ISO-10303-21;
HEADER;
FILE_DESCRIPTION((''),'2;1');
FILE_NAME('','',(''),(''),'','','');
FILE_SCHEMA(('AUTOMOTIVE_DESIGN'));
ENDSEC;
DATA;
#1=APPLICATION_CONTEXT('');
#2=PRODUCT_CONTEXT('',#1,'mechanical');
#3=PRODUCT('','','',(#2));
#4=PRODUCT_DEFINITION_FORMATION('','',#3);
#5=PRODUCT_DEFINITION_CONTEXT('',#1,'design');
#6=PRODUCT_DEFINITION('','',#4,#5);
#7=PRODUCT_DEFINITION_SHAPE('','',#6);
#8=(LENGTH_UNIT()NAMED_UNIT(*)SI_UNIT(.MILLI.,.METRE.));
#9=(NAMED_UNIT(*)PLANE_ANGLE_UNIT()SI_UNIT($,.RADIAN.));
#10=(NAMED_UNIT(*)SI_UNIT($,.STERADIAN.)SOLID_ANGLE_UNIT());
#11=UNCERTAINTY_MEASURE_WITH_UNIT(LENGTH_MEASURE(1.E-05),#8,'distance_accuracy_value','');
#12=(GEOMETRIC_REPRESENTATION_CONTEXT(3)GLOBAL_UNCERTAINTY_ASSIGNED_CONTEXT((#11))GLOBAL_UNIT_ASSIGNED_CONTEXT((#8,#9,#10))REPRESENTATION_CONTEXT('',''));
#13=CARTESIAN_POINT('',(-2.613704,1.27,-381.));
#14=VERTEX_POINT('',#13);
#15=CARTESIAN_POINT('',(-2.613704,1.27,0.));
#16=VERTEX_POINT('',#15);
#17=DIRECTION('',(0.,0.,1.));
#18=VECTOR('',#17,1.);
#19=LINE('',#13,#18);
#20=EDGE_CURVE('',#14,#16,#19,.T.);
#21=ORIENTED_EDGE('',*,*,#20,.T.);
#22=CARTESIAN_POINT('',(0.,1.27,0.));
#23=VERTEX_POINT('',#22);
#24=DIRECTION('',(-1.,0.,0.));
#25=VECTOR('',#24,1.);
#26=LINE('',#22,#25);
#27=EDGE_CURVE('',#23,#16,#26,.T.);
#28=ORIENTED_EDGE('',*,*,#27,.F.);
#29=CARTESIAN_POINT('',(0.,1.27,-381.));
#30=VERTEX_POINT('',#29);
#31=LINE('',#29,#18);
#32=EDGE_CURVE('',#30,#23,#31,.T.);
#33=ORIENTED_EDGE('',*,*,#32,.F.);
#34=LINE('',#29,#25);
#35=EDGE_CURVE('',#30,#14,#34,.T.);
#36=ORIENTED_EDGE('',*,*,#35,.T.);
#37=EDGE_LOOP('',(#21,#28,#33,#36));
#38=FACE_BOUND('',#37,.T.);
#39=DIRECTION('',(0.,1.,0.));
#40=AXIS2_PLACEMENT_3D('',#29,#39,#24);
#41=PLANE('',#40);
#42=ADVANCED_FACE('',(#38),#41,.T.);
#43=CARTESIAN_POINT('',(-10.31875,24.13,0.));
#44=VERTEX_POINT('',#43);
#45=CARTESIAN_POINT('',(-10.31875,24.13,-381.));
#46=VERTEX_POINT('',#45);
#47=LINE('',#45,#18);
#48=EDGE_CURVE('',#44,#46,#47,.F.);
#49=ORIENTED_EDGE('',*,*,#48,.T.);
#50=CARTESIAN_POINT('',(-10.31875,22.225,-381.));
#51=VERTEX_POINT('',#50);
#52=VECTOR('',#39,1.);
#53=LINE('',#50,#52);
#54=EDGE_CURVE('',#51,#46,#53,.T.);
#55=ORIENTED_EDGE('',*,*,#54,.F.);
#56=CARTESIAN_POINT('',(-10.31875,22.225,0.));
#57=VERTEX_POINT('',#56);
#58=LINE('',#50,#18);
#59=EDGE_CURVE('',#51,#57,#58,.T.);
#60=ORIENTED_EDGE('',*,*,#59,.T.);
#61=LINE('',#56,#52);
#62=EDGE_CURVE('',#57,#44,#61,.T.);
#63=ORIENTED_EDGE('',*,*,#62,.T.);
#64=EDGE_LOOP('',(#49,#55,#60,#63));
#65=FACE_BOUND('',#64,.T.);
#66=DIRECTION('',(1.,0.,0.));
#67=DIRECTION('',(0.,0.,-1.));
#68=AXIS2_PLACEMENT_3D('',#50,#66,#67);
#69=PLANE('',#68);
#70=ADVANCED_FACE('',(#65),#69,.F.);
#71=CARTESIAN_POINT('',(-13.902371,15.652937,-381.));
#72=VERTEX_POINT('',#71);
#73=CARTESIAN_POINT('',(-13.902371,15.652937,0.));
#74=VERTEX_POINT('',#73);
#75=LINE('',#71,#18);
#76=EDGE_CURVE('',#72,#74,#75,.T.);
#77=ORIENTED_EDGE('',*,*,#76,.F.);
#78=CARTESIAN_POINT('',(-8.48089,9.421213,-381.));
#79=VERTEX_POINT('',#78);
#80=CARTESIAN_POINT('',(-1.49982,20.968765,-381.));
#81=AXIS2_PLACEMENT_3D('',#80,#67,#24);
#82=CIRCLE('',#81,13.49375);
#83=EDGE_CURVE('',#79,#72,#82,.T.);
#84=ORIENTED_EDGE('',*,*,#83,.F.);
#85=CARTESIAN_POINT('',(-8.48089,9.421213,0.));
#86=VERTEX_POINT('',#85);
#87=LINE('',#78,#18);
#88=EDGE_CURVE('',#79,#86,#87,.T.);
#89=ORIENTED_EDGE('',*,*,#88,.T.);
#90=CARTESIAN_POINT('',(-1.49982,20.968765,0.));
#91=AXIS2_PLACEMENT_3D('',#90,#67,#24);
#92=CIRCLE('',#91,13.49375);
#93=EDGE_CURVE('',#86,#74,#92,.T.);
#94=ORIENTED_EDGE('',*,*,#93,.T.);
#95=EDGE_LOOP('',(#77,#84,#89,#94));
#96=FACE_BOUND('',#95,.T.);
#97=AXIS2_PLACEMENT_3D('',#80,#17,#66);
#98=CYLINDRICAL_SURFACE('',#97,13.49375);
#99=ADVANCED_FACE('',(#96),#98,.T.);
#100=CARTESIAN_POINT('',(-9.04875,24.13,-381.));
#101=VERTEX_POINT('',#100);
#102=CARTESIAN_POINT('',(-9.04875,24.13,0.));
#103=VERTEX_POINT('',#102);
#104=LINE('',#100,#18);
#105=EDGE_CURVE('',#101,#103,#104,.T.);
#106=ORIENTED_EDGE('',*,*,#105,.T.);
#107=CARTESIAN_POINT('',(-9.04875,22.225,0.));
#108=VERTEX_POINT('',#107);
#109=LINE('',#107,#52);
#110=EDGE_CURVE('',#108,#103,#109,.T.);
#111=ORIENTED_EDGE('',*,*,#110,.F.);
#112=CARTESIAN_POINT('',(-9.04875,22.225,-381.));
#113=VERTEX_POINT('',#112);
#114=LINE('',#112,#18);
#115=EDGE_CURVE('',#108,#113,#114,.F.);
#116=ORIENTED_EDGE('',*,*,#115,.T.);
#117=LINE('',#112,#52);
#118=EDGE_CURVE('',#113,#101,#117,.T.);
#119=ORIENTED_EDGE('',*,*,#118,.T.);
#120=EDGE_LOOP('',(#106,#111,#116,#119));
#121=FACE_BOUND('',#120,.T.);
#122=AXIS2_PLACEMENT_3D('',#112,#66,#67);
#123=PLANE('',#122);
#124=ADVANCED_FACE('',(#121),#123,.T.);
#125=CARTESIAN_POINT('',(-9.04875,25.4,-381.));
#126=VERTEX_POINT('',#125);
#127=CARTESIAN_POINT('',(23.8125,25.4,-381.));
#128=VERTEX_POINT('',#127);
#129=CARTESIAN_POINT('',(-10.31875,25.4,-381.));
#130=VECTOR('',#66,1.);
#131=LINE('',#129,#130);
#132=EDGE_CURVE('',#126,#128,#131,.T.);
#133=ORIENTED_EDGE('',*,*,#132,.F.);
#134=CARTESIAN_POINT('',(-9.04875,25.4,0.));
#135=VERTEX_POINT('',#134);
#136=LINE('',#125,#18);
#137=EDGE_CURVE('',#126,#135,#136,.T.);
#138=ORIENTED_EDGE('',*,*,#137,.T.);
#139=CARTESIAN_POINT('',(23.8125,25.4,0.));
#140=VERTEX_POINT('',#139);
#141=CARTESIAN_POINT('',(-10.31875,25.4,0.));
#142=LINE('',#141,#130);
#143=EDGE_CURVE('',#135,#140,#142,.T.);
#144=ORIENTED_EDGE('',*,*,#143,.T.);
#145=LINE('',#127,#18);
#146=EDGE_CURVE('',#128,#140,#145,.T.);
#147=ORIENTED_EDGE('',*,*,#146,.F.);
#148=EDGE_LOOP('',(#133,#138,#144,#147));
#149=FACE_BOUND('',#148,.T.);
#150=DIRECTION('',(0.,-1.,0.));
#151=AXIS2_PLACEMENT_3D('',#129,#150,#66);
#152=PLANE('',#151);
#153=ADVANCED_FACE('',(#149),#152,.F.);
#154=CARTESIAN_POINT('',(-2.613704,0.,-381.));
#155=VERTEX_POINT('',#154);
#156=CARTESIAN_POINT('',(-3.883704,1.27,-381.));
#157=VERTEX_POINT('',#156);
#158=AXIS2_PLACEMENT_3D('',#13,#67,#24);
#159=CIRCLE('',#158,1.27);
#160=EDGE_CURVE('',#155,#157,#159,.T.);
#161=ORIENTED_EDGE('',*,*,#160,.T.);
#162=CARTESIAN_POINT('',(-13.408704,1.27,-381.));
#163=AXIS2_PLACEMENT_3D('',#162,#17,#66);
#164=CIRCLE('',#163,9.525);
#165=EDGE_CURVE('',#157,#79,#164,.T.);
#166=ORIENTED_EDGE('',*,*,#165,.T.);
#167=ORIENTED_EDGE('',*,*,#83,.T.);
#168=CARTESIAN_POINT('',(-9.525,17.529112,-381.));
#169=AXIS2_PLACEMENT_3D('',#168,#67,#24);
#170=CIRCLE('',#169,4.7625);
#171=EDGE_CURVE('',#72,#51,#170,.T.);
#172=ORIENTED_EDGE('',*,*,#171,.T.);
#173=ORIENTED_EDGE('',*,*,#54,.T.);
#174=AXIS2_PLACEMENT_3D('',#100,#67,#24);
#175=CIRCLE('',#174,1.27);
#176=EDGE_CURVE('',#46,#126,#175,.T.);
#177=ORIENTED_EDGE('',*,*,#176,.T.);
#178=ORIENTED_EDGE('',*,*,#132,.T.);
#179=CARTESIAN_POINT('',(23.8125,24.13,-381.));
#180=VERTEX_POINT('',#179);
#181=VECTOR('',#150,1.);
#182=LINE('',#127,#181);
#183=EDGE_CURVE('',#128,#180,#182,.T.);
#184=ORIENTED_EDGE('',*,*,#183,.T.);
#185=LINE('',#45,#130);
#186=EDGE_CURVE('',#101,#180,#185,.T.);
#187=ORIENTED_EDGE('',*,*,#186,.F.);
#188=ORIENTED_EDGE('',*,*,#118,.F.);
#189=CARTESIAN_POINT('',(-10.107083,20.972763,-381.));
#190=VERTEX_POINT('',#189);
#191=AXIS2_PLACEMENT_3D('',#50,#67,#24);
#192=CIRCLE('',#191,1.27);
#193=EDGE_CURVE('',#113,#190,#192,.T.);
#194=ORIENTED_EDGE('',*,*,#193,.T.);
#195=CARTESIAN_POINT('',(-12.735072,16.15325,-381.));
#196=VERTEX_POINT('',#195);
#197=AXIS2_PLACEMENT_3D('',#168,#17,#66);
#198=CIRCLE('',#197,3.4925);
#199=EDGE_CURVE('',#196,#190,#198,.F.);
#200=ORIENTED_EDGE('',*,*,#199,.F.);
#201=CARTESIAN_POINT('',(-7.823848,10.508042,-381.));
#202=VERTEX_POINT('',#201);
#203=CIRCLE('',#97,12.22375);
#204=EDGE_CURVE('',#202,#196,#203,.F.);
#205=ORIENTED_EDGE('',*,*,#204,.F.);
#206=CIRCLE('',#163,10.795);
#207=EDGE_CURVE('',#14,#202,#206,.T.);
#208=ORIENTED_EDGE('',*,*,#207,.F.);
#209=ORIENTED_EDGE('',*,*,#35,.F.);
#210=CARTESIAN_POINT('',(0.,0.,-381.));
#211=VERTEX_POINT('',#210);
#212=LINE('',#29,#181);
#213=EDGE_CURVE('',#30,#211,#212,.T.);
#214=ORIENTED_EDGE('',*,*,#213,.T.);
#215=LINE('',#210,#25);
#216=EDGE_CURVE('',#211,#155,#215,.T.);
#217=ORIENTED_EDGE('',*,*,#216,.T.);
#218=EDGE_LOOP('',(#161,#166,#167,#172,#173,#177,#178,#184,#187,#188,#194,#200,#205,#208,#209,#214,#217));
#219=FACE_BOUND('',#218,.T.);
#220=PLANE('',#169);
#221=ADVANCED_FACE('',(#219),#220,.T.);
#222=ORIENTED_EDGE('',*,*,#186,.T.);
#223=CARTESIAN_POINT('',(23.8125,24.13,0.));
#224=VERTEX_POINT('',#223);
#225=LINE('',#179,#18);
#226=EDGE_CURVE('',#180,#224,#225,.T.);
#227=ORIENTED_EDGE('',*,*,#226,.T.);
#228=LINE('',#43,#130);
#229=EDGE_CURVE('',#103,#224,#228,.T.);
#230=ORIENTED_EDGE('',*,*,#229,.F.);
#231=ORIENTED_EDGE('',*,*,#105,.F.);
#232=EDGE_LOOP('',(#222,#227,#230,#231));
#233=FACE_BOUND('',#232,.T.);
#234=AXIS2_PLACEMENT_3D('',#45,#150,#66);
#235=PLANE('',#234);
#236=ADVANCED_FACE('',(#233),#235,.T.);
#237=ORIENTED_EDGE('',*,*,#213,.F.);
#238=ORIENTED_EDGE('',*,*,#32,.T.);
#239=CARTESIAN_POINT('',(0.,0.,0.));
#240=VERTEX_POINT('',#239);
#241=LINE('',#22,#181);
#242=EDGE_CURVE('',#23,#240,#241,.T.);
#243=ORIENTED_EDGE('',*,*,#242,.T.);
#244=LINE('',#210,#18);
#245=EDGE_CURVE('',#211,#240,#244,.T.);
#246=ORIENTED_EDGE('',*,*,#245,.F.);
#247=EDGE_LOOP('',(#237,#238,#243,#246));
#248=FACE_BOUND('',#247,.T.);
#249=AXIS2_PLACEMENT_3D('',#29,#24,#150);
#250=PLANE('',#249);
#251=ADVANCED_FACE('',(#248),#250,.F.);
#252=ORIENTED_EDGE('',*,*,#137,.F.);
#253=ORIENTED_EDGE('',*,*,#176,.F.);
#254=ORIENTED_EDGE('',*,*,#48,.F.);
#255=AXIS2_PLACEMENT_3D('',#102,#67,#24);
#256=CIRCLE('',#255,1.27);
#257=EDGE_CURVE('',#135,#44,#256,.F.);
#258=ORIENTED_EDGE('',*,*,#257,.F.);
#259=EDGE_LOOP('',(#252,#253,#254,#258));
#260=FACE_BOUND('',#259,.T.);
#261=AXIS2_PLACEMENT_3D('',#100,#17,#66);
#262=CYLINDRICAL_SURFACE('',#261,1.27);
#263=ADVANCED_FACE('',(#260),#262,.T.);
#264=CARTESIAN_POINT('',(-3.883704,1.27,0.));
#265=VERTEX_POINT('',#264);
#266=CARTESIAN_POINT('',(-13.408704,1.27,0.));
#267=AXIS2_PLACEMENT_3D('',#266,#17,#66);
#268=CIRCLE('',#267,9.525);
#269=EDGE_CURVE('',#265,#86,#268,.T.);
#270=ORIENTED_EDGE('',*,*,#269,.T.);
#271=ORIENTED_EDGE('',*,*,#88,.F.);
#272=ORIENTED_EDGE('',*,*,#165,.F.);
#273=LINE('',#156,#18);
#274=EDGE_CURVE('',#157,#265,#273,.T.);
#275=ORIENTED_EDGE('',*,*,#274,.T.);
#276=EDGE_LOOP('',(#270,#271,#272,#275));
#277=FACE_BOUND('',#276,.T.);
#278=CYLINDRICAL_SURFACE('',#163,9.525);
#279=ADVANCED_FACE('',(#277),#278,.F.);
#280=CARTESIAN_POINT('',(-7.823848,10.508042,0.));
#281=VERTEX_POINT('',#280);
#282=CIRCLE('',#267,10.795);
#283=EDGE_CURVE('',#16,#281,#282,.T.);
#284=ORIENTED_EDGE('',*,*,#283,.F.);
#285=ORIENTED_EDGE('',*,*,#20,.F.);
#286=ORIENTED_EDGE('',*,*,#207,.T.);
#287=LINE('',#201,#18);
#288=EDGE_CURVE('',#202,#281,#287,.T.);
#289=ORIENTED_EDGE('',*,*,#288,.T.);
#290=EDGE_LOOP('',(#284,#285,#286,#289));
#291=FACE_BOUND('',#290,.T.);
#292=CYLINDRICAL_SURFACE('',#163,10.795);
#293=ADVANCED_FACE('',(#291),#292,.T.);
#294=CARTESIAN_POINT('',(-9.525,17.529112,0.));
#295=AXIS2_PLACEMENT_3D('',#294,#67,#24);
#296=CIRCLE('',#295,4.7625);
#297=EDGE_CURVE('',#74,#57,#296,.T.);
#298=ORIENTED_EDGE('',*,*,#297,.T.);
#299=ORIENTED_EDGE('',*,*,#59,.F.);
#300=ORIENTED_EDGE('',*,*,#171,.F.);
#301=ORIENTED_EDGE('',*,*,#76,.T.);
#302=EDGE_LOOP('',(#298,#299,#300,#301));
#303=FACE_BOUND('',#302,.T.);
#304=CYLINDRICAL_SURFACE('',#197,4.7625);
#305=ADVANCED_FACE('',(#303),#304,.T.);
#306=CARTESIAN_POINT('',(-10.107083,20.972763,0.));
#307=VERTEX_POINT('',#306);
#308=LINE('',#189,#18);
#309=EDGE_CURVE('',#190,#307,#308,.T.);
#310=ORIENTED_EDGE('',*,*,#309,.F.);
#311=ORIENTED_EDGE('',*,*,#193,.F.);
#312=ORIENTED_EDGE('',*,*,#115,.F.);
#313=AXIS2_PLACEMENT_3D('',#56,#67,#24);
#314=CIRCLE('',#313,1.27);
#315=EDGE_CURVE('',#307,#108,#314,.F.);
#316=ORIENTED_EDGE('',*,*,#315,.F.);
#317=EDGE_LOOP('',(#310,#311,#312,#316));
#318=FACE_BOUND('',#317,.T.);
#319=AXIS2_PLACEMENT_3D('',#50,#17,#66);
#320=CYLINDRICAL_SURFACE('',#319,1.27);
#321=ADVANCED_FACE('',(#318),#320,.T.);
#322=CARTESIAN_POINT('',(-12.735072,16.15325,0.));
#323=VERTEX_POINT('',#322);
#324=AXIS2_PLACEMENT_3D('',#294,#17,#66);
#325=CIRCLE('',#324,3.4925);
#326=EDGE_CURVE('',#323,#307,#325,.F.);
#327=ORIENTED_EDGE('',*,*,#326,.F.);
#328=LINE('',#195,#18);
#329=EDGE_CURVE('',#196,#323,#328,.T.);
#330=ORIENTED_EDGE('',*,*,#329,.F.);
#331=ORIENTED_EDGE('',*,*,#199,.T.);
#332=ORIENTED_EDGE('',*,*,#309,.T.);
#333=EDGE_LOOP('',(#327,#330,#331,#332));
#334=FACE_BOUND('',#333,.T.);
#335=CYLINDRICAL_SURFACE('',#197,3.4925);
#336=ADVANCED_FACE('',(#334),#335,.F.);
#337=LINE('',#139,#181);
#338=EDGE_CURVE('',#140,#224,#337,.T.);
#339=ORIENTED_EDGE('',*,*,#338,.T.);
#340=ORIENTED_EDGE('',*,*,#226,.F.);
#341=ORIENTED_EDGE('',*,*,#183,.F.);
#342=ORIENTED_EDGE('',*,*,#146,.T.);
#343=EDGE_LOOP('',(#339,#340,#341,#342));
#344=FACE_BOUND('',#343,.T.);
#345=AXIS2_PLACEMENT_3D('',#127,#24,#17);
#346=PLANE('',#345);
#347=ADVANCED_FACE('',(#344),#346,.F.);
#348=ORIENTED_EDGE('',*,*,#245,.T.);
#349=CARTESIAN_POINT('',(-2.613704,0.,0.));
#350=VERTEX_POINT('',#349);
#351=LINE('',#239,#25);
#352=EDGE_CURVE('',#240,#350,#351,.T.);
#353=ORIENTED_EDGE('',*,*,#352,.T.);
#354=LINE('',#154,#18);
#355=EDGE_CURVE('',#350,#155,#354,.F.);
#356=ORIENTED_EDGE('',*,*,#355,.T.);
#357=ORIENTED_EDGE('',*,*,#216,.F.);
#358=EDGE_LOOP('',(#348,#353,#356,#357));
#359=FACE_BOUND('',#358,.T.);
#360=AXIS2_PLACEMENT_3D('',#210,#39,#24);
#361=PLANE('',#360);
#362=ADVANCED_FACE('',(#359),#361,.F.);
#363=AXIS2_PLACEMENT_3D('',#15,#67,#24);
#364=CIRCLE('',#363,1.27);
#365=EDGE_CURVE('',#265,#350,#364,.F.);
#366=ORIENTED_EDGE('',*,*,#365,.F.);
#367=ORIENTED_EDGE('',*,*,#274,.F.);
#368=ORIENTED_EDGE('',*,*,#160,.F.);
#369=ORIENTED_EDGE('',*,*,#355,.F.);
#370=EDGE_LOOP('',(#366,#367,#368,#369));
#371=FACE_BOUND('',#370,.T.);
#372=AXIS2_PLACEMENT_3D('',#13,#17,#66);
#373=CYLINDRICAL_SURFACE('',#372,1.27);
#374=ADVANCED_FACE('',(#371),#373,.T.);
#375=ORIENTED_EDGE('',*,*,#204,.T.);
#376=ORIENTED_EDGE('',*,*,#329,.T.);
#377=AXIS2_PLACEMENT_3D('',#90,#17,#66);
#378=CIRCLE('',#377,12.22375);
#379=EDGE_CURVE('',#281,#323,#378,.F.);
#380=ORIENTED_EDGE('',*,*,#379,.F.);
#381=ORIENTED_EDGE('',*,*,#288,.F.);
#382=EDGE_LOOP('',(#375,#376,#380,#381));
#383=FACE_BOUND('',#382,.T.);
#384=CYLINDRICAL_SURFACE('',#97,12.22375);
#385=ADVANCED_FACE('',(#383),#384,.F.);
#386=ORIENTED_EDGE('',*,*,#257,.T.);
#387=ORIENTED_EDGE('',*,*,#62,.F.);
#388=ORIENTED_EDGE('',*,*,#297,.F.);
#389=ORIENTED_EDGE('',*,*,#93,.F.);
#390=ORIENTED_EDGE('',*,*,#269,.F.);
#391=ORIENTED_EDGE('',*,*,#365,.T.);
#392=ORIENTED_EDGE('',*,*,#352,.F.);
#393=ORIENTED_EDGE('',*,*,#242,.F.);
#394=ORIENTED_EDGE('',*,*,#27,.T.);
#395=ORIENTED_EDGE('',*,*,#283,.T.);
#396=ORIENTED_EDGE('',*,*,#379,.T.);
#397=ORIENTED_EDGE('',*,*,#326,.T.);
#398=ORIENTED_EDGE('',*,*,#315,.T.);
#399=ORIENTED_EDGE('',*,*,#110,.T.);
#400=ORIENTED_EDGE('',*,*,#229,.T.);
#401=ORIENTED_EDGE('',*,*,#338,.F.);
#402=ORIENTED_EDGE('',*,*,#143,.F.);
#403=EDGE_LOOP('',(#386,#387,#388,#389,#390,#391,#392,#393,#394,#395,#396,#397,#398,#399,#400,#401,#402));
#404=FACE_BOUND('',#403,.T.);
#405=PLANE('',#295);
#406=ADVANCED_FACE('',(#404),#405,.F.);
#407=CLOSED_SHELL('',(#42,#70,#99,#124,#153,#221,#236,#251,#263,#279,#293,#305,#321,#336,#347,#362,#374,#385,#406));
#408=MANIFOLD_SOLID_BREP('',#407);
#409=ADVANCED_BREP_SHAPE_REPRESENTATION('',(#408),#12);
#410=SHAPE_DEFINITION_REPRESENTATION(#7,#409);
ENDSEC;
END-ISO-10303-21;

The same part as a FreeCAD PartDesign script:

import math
import FreeCAD as App
import Part
import Sketcher
Q = App.Units.Quantity


def edges_at(feature, points):
    """Names of the edges that pass closest to the given points."""
    edges = feature.Shape.Edges
    near = lambda p: min(range(len(edges)), key=lambda i: edges[i].distToShape(Part.Vertex(*p))[0])
    return sorted({f"Edge{near(p) + 1}" for p in points})

doc = App.newDocument("Part")
body = doc.addObject("PartDesign::Body", "Body")

# Sketch on XY plane
sketch1 = body.newObject("Sketcher::SketchObject", "Sketch")
sketch1.AttachmentSupport = (doc.getObject("XY_Plane"), [""])
sketch1.MapMode = "FlatFace"
sketch1.addGeometry(Part.LineSegment(App.Vector(-4, 0, 0), App.Vector(0, 0, 0)), False)
sketch1.addGeometry(Part.LineSegment(App.Vector(0, 0, 0), App.Vector(0, 1.3, 0)), False)
sketch1.addGeometry(Part.LineSegment(App.Vector(0, 1.3, 0), App.Vector(-2.6, 1.3, 0)), False)
sketch1.addGeometry(Part.ArcOfCircle(Part.Circle(App.Vector(-13.4, 1.3, 0), App.Vector(0, 0, 1), 10.8), math.radians(0), math.radians(59)), False)
sketch1.addGeometry(Part.ArcOfCircle(Part.Circle(App.Vector(-1.5, 21, 0), App.Vector(0, 0, 1), 12.2), math.radians(-157), math.radians(-121)), False)
sketch1.addGeometry(Part.ArcOfCircle(Part.Circle(App.Vector(-9.5, 17.5, 0), App.Vector(0, 0, 1), 3.5), math.radians(82), math.radians(203)), False)
sketch1.addGeometry(Part.LineSegment(App.Vector(-9, 21, 0), App.Vector(-9, 24.1, 0)), False)
sketch1.addGeometry(Part.LineSegment(App.Vector(-9, 24.1, 0), App.Vector(23.8, 24.1, 0)), False)
sketch1.addGeometry(Part.LineSegment(App.Vector(23.8, 24.1, 0), App.Vector(23.8, 25.4, 0)), False)
sketch1.addGeometry(Part.LineSegment(App.Vector(23.8, 25.4, 0), App.Vector(-10.3, 25.4, 0)), False)
sketch1.addGeometry(Part.LineSegment(App.Vector(-10.3, 25.4, 0), App.Vector(-10.3, 22.2, 0)), False)
sketch1.addGeometry(Part.ArcOfCircle(Part.Circle(App.Vector(-9.5, 17.5, 0), App.Vector(0, 0, 1), 4.8), math.radians(100), math.radians(203)), False)
sketch1.addGeometry(Part.ArcOfCircle(Part.Circle(App.Vector(-1.5, 21, 0), App.Vector(0, 0, 1), 13.5), math.radians(-157), math.radians(-121)), False)
sketch1.addGeometry(Part.ArcOfCircle(Part.Circle(App.Vector(-13.4, 1.3, 0), App.Vector(0, 0, 1), 9.5), math.radians(-8), math.radians(59)), False)
sketch1.addConstraint(Sketcher.Constraint("Coincident", 0, 2, 1, 1))
sketch1.addConstraint(Sketcher.Constraint("Coincident", 1, 2, 2, 1))
sketch1.addConstraint(Sketcher.Constraint("Coincident", 2, 2, 3, 1))
sketch1.addConstraint(Sketcher.Constraint("Tangent", 3, 2, 4, 2))
sketch1.addConstraint(Sketcher.Constraint("Tangent", 4, 1, 5, 2))
sketch1.addConstraint(Sketcher.Constraint("Coincident", 5, 1, 6, 1))
sketch1.addConstraint(Sketcher.Constraint("Coincident", 6, 2, 7, 1))
sketch1.addConstraint(Sketcher.Constraint("Coincident", 7, 2, 8, 1))
sketch1.addConstraint(Sketcher.Constraint("Coincident", 8, 2, 9, 1))
sketch1.addConstraint(Sketcher.Constraint("Coincident", 9, 2, 10, 1))
sketch1.addConstraint(Sketcher.Constraint("Coincident", 10, 2, 11, 1))
sketch1.addConstraint(Sketcher.Constraint("Tangent", 11, 2, 12, 1))
sketch1.addConstraint(Sketcher.Constraint("Tangent", 12, 2, 13, 2))
sketch1.addConstraint(Sketcher.Constraint("Coincident", 13, 1, 0, 1))
sketch1.addConstraint(Sketcher.Constraint("Horizontal", 0))
sketch1.addConstraint(Sketcher.Constraint("Vertical", 1))
sketch1.addConstraint(Sketcher.Constraint("Horizontal", 2))
sketch1.addConstraint(Sketcher.Constraint("Vertical", 6))
sketch1.addConstraint(Sketcher.Constraint("Horizontal", 7))
sketch1.addConstraint(Sketcher.Constraint("Vertical", 8))
sketch1.addConstraint(Sketcher.Constraint("Horizontal", 9))
sketch1.addConstraint(Sketcher.Constraint("Vertical", 10))
sketch1.addConstraint(Sketcher.Constraint("Coincident", 0, 2, -1, 1))
sketch1.addConstraint(Sketcher.Constraint("Coincident", 11, 3, 5, 3))
sketch1.addConstraint(Sketcher.Constraint("Coincident", 12, 3, 4, 3))
sketch1.addConstraint(Sketcher.Constraint("Coincident", 13, 3, 3, 3))
sketch1.addConstraint(Sketcher.Constraint("Horizontal", 13, 3, 1, 2))
sketch1.addConstraint(Sketcher.Constraint("Equal", 1, 8))
sketch1.addConstraint(Sketcher.Constraint("DistanceY", -1, 1, 8, 2, Q("1 in")))
sketch1.addConstraint(Sketcher.Constraint("Radius", 3, Q("0.425 in")))
sketch1.addConstraint(Sketcher.Constraint("Radius", 11, Q("0.1875 in")))
sketch1.addConstraint(Sketcher.Constraint("Radius", 12, Q("0.53125 in")))
sketch1.addConstraint(Sketcher.Constraint("Radius", 13, Q("0.375 in")))
sketch1.addConstraint(Sketcher.Constraint("DistanceY", 1, 1, 1, 2, Q("0.05 in")))
sketch1.addConstraint(Sketcher.Constraint("DistanceX", 0, 1, 0, 2, Q("0.15625 in")))
sketch1.addConstraint(Sketcher.Constraint("DistanceX", 9, 2, 9, 1, Q("1.34375 in")))
sketch1.addConstraint(Sketcher.Constraint("DistanceY", 10, 2, 10, 1, Q("0.125 in")))
sketch1.addConstraint(Sketcher.Constraint("DistanceX", 9, 2, 6, 2, Q("0.05 in")))
sketch1.addConstraint(Sketcher.Constraint("DistanceX", 5, 3, -1, 1, Q("0.375 in")))
sketch1.addConstraint(Sketcher.Constraint("DistanceX", -1, 1, 7, 2, Q("0.9375 in")))
pad1 = body.newObject("PartDesign::Pad", "Pad")
pad1.Profile = sketch1
pad1.Length = Q("15 in")
pad1.Reversed = True
doc.recompute()

fillet = body.newObject("PartDesign::Fillet", "Fillet")
fillet.Base = (pad1, edges_at(pad1, [(-9.049, 20.989, -190.5), (-3.969, 0, -190.5), (-10.319, 25.4, -190.5)]))
fillet.Radius = Q("0.05 in")

doc.recompute()
